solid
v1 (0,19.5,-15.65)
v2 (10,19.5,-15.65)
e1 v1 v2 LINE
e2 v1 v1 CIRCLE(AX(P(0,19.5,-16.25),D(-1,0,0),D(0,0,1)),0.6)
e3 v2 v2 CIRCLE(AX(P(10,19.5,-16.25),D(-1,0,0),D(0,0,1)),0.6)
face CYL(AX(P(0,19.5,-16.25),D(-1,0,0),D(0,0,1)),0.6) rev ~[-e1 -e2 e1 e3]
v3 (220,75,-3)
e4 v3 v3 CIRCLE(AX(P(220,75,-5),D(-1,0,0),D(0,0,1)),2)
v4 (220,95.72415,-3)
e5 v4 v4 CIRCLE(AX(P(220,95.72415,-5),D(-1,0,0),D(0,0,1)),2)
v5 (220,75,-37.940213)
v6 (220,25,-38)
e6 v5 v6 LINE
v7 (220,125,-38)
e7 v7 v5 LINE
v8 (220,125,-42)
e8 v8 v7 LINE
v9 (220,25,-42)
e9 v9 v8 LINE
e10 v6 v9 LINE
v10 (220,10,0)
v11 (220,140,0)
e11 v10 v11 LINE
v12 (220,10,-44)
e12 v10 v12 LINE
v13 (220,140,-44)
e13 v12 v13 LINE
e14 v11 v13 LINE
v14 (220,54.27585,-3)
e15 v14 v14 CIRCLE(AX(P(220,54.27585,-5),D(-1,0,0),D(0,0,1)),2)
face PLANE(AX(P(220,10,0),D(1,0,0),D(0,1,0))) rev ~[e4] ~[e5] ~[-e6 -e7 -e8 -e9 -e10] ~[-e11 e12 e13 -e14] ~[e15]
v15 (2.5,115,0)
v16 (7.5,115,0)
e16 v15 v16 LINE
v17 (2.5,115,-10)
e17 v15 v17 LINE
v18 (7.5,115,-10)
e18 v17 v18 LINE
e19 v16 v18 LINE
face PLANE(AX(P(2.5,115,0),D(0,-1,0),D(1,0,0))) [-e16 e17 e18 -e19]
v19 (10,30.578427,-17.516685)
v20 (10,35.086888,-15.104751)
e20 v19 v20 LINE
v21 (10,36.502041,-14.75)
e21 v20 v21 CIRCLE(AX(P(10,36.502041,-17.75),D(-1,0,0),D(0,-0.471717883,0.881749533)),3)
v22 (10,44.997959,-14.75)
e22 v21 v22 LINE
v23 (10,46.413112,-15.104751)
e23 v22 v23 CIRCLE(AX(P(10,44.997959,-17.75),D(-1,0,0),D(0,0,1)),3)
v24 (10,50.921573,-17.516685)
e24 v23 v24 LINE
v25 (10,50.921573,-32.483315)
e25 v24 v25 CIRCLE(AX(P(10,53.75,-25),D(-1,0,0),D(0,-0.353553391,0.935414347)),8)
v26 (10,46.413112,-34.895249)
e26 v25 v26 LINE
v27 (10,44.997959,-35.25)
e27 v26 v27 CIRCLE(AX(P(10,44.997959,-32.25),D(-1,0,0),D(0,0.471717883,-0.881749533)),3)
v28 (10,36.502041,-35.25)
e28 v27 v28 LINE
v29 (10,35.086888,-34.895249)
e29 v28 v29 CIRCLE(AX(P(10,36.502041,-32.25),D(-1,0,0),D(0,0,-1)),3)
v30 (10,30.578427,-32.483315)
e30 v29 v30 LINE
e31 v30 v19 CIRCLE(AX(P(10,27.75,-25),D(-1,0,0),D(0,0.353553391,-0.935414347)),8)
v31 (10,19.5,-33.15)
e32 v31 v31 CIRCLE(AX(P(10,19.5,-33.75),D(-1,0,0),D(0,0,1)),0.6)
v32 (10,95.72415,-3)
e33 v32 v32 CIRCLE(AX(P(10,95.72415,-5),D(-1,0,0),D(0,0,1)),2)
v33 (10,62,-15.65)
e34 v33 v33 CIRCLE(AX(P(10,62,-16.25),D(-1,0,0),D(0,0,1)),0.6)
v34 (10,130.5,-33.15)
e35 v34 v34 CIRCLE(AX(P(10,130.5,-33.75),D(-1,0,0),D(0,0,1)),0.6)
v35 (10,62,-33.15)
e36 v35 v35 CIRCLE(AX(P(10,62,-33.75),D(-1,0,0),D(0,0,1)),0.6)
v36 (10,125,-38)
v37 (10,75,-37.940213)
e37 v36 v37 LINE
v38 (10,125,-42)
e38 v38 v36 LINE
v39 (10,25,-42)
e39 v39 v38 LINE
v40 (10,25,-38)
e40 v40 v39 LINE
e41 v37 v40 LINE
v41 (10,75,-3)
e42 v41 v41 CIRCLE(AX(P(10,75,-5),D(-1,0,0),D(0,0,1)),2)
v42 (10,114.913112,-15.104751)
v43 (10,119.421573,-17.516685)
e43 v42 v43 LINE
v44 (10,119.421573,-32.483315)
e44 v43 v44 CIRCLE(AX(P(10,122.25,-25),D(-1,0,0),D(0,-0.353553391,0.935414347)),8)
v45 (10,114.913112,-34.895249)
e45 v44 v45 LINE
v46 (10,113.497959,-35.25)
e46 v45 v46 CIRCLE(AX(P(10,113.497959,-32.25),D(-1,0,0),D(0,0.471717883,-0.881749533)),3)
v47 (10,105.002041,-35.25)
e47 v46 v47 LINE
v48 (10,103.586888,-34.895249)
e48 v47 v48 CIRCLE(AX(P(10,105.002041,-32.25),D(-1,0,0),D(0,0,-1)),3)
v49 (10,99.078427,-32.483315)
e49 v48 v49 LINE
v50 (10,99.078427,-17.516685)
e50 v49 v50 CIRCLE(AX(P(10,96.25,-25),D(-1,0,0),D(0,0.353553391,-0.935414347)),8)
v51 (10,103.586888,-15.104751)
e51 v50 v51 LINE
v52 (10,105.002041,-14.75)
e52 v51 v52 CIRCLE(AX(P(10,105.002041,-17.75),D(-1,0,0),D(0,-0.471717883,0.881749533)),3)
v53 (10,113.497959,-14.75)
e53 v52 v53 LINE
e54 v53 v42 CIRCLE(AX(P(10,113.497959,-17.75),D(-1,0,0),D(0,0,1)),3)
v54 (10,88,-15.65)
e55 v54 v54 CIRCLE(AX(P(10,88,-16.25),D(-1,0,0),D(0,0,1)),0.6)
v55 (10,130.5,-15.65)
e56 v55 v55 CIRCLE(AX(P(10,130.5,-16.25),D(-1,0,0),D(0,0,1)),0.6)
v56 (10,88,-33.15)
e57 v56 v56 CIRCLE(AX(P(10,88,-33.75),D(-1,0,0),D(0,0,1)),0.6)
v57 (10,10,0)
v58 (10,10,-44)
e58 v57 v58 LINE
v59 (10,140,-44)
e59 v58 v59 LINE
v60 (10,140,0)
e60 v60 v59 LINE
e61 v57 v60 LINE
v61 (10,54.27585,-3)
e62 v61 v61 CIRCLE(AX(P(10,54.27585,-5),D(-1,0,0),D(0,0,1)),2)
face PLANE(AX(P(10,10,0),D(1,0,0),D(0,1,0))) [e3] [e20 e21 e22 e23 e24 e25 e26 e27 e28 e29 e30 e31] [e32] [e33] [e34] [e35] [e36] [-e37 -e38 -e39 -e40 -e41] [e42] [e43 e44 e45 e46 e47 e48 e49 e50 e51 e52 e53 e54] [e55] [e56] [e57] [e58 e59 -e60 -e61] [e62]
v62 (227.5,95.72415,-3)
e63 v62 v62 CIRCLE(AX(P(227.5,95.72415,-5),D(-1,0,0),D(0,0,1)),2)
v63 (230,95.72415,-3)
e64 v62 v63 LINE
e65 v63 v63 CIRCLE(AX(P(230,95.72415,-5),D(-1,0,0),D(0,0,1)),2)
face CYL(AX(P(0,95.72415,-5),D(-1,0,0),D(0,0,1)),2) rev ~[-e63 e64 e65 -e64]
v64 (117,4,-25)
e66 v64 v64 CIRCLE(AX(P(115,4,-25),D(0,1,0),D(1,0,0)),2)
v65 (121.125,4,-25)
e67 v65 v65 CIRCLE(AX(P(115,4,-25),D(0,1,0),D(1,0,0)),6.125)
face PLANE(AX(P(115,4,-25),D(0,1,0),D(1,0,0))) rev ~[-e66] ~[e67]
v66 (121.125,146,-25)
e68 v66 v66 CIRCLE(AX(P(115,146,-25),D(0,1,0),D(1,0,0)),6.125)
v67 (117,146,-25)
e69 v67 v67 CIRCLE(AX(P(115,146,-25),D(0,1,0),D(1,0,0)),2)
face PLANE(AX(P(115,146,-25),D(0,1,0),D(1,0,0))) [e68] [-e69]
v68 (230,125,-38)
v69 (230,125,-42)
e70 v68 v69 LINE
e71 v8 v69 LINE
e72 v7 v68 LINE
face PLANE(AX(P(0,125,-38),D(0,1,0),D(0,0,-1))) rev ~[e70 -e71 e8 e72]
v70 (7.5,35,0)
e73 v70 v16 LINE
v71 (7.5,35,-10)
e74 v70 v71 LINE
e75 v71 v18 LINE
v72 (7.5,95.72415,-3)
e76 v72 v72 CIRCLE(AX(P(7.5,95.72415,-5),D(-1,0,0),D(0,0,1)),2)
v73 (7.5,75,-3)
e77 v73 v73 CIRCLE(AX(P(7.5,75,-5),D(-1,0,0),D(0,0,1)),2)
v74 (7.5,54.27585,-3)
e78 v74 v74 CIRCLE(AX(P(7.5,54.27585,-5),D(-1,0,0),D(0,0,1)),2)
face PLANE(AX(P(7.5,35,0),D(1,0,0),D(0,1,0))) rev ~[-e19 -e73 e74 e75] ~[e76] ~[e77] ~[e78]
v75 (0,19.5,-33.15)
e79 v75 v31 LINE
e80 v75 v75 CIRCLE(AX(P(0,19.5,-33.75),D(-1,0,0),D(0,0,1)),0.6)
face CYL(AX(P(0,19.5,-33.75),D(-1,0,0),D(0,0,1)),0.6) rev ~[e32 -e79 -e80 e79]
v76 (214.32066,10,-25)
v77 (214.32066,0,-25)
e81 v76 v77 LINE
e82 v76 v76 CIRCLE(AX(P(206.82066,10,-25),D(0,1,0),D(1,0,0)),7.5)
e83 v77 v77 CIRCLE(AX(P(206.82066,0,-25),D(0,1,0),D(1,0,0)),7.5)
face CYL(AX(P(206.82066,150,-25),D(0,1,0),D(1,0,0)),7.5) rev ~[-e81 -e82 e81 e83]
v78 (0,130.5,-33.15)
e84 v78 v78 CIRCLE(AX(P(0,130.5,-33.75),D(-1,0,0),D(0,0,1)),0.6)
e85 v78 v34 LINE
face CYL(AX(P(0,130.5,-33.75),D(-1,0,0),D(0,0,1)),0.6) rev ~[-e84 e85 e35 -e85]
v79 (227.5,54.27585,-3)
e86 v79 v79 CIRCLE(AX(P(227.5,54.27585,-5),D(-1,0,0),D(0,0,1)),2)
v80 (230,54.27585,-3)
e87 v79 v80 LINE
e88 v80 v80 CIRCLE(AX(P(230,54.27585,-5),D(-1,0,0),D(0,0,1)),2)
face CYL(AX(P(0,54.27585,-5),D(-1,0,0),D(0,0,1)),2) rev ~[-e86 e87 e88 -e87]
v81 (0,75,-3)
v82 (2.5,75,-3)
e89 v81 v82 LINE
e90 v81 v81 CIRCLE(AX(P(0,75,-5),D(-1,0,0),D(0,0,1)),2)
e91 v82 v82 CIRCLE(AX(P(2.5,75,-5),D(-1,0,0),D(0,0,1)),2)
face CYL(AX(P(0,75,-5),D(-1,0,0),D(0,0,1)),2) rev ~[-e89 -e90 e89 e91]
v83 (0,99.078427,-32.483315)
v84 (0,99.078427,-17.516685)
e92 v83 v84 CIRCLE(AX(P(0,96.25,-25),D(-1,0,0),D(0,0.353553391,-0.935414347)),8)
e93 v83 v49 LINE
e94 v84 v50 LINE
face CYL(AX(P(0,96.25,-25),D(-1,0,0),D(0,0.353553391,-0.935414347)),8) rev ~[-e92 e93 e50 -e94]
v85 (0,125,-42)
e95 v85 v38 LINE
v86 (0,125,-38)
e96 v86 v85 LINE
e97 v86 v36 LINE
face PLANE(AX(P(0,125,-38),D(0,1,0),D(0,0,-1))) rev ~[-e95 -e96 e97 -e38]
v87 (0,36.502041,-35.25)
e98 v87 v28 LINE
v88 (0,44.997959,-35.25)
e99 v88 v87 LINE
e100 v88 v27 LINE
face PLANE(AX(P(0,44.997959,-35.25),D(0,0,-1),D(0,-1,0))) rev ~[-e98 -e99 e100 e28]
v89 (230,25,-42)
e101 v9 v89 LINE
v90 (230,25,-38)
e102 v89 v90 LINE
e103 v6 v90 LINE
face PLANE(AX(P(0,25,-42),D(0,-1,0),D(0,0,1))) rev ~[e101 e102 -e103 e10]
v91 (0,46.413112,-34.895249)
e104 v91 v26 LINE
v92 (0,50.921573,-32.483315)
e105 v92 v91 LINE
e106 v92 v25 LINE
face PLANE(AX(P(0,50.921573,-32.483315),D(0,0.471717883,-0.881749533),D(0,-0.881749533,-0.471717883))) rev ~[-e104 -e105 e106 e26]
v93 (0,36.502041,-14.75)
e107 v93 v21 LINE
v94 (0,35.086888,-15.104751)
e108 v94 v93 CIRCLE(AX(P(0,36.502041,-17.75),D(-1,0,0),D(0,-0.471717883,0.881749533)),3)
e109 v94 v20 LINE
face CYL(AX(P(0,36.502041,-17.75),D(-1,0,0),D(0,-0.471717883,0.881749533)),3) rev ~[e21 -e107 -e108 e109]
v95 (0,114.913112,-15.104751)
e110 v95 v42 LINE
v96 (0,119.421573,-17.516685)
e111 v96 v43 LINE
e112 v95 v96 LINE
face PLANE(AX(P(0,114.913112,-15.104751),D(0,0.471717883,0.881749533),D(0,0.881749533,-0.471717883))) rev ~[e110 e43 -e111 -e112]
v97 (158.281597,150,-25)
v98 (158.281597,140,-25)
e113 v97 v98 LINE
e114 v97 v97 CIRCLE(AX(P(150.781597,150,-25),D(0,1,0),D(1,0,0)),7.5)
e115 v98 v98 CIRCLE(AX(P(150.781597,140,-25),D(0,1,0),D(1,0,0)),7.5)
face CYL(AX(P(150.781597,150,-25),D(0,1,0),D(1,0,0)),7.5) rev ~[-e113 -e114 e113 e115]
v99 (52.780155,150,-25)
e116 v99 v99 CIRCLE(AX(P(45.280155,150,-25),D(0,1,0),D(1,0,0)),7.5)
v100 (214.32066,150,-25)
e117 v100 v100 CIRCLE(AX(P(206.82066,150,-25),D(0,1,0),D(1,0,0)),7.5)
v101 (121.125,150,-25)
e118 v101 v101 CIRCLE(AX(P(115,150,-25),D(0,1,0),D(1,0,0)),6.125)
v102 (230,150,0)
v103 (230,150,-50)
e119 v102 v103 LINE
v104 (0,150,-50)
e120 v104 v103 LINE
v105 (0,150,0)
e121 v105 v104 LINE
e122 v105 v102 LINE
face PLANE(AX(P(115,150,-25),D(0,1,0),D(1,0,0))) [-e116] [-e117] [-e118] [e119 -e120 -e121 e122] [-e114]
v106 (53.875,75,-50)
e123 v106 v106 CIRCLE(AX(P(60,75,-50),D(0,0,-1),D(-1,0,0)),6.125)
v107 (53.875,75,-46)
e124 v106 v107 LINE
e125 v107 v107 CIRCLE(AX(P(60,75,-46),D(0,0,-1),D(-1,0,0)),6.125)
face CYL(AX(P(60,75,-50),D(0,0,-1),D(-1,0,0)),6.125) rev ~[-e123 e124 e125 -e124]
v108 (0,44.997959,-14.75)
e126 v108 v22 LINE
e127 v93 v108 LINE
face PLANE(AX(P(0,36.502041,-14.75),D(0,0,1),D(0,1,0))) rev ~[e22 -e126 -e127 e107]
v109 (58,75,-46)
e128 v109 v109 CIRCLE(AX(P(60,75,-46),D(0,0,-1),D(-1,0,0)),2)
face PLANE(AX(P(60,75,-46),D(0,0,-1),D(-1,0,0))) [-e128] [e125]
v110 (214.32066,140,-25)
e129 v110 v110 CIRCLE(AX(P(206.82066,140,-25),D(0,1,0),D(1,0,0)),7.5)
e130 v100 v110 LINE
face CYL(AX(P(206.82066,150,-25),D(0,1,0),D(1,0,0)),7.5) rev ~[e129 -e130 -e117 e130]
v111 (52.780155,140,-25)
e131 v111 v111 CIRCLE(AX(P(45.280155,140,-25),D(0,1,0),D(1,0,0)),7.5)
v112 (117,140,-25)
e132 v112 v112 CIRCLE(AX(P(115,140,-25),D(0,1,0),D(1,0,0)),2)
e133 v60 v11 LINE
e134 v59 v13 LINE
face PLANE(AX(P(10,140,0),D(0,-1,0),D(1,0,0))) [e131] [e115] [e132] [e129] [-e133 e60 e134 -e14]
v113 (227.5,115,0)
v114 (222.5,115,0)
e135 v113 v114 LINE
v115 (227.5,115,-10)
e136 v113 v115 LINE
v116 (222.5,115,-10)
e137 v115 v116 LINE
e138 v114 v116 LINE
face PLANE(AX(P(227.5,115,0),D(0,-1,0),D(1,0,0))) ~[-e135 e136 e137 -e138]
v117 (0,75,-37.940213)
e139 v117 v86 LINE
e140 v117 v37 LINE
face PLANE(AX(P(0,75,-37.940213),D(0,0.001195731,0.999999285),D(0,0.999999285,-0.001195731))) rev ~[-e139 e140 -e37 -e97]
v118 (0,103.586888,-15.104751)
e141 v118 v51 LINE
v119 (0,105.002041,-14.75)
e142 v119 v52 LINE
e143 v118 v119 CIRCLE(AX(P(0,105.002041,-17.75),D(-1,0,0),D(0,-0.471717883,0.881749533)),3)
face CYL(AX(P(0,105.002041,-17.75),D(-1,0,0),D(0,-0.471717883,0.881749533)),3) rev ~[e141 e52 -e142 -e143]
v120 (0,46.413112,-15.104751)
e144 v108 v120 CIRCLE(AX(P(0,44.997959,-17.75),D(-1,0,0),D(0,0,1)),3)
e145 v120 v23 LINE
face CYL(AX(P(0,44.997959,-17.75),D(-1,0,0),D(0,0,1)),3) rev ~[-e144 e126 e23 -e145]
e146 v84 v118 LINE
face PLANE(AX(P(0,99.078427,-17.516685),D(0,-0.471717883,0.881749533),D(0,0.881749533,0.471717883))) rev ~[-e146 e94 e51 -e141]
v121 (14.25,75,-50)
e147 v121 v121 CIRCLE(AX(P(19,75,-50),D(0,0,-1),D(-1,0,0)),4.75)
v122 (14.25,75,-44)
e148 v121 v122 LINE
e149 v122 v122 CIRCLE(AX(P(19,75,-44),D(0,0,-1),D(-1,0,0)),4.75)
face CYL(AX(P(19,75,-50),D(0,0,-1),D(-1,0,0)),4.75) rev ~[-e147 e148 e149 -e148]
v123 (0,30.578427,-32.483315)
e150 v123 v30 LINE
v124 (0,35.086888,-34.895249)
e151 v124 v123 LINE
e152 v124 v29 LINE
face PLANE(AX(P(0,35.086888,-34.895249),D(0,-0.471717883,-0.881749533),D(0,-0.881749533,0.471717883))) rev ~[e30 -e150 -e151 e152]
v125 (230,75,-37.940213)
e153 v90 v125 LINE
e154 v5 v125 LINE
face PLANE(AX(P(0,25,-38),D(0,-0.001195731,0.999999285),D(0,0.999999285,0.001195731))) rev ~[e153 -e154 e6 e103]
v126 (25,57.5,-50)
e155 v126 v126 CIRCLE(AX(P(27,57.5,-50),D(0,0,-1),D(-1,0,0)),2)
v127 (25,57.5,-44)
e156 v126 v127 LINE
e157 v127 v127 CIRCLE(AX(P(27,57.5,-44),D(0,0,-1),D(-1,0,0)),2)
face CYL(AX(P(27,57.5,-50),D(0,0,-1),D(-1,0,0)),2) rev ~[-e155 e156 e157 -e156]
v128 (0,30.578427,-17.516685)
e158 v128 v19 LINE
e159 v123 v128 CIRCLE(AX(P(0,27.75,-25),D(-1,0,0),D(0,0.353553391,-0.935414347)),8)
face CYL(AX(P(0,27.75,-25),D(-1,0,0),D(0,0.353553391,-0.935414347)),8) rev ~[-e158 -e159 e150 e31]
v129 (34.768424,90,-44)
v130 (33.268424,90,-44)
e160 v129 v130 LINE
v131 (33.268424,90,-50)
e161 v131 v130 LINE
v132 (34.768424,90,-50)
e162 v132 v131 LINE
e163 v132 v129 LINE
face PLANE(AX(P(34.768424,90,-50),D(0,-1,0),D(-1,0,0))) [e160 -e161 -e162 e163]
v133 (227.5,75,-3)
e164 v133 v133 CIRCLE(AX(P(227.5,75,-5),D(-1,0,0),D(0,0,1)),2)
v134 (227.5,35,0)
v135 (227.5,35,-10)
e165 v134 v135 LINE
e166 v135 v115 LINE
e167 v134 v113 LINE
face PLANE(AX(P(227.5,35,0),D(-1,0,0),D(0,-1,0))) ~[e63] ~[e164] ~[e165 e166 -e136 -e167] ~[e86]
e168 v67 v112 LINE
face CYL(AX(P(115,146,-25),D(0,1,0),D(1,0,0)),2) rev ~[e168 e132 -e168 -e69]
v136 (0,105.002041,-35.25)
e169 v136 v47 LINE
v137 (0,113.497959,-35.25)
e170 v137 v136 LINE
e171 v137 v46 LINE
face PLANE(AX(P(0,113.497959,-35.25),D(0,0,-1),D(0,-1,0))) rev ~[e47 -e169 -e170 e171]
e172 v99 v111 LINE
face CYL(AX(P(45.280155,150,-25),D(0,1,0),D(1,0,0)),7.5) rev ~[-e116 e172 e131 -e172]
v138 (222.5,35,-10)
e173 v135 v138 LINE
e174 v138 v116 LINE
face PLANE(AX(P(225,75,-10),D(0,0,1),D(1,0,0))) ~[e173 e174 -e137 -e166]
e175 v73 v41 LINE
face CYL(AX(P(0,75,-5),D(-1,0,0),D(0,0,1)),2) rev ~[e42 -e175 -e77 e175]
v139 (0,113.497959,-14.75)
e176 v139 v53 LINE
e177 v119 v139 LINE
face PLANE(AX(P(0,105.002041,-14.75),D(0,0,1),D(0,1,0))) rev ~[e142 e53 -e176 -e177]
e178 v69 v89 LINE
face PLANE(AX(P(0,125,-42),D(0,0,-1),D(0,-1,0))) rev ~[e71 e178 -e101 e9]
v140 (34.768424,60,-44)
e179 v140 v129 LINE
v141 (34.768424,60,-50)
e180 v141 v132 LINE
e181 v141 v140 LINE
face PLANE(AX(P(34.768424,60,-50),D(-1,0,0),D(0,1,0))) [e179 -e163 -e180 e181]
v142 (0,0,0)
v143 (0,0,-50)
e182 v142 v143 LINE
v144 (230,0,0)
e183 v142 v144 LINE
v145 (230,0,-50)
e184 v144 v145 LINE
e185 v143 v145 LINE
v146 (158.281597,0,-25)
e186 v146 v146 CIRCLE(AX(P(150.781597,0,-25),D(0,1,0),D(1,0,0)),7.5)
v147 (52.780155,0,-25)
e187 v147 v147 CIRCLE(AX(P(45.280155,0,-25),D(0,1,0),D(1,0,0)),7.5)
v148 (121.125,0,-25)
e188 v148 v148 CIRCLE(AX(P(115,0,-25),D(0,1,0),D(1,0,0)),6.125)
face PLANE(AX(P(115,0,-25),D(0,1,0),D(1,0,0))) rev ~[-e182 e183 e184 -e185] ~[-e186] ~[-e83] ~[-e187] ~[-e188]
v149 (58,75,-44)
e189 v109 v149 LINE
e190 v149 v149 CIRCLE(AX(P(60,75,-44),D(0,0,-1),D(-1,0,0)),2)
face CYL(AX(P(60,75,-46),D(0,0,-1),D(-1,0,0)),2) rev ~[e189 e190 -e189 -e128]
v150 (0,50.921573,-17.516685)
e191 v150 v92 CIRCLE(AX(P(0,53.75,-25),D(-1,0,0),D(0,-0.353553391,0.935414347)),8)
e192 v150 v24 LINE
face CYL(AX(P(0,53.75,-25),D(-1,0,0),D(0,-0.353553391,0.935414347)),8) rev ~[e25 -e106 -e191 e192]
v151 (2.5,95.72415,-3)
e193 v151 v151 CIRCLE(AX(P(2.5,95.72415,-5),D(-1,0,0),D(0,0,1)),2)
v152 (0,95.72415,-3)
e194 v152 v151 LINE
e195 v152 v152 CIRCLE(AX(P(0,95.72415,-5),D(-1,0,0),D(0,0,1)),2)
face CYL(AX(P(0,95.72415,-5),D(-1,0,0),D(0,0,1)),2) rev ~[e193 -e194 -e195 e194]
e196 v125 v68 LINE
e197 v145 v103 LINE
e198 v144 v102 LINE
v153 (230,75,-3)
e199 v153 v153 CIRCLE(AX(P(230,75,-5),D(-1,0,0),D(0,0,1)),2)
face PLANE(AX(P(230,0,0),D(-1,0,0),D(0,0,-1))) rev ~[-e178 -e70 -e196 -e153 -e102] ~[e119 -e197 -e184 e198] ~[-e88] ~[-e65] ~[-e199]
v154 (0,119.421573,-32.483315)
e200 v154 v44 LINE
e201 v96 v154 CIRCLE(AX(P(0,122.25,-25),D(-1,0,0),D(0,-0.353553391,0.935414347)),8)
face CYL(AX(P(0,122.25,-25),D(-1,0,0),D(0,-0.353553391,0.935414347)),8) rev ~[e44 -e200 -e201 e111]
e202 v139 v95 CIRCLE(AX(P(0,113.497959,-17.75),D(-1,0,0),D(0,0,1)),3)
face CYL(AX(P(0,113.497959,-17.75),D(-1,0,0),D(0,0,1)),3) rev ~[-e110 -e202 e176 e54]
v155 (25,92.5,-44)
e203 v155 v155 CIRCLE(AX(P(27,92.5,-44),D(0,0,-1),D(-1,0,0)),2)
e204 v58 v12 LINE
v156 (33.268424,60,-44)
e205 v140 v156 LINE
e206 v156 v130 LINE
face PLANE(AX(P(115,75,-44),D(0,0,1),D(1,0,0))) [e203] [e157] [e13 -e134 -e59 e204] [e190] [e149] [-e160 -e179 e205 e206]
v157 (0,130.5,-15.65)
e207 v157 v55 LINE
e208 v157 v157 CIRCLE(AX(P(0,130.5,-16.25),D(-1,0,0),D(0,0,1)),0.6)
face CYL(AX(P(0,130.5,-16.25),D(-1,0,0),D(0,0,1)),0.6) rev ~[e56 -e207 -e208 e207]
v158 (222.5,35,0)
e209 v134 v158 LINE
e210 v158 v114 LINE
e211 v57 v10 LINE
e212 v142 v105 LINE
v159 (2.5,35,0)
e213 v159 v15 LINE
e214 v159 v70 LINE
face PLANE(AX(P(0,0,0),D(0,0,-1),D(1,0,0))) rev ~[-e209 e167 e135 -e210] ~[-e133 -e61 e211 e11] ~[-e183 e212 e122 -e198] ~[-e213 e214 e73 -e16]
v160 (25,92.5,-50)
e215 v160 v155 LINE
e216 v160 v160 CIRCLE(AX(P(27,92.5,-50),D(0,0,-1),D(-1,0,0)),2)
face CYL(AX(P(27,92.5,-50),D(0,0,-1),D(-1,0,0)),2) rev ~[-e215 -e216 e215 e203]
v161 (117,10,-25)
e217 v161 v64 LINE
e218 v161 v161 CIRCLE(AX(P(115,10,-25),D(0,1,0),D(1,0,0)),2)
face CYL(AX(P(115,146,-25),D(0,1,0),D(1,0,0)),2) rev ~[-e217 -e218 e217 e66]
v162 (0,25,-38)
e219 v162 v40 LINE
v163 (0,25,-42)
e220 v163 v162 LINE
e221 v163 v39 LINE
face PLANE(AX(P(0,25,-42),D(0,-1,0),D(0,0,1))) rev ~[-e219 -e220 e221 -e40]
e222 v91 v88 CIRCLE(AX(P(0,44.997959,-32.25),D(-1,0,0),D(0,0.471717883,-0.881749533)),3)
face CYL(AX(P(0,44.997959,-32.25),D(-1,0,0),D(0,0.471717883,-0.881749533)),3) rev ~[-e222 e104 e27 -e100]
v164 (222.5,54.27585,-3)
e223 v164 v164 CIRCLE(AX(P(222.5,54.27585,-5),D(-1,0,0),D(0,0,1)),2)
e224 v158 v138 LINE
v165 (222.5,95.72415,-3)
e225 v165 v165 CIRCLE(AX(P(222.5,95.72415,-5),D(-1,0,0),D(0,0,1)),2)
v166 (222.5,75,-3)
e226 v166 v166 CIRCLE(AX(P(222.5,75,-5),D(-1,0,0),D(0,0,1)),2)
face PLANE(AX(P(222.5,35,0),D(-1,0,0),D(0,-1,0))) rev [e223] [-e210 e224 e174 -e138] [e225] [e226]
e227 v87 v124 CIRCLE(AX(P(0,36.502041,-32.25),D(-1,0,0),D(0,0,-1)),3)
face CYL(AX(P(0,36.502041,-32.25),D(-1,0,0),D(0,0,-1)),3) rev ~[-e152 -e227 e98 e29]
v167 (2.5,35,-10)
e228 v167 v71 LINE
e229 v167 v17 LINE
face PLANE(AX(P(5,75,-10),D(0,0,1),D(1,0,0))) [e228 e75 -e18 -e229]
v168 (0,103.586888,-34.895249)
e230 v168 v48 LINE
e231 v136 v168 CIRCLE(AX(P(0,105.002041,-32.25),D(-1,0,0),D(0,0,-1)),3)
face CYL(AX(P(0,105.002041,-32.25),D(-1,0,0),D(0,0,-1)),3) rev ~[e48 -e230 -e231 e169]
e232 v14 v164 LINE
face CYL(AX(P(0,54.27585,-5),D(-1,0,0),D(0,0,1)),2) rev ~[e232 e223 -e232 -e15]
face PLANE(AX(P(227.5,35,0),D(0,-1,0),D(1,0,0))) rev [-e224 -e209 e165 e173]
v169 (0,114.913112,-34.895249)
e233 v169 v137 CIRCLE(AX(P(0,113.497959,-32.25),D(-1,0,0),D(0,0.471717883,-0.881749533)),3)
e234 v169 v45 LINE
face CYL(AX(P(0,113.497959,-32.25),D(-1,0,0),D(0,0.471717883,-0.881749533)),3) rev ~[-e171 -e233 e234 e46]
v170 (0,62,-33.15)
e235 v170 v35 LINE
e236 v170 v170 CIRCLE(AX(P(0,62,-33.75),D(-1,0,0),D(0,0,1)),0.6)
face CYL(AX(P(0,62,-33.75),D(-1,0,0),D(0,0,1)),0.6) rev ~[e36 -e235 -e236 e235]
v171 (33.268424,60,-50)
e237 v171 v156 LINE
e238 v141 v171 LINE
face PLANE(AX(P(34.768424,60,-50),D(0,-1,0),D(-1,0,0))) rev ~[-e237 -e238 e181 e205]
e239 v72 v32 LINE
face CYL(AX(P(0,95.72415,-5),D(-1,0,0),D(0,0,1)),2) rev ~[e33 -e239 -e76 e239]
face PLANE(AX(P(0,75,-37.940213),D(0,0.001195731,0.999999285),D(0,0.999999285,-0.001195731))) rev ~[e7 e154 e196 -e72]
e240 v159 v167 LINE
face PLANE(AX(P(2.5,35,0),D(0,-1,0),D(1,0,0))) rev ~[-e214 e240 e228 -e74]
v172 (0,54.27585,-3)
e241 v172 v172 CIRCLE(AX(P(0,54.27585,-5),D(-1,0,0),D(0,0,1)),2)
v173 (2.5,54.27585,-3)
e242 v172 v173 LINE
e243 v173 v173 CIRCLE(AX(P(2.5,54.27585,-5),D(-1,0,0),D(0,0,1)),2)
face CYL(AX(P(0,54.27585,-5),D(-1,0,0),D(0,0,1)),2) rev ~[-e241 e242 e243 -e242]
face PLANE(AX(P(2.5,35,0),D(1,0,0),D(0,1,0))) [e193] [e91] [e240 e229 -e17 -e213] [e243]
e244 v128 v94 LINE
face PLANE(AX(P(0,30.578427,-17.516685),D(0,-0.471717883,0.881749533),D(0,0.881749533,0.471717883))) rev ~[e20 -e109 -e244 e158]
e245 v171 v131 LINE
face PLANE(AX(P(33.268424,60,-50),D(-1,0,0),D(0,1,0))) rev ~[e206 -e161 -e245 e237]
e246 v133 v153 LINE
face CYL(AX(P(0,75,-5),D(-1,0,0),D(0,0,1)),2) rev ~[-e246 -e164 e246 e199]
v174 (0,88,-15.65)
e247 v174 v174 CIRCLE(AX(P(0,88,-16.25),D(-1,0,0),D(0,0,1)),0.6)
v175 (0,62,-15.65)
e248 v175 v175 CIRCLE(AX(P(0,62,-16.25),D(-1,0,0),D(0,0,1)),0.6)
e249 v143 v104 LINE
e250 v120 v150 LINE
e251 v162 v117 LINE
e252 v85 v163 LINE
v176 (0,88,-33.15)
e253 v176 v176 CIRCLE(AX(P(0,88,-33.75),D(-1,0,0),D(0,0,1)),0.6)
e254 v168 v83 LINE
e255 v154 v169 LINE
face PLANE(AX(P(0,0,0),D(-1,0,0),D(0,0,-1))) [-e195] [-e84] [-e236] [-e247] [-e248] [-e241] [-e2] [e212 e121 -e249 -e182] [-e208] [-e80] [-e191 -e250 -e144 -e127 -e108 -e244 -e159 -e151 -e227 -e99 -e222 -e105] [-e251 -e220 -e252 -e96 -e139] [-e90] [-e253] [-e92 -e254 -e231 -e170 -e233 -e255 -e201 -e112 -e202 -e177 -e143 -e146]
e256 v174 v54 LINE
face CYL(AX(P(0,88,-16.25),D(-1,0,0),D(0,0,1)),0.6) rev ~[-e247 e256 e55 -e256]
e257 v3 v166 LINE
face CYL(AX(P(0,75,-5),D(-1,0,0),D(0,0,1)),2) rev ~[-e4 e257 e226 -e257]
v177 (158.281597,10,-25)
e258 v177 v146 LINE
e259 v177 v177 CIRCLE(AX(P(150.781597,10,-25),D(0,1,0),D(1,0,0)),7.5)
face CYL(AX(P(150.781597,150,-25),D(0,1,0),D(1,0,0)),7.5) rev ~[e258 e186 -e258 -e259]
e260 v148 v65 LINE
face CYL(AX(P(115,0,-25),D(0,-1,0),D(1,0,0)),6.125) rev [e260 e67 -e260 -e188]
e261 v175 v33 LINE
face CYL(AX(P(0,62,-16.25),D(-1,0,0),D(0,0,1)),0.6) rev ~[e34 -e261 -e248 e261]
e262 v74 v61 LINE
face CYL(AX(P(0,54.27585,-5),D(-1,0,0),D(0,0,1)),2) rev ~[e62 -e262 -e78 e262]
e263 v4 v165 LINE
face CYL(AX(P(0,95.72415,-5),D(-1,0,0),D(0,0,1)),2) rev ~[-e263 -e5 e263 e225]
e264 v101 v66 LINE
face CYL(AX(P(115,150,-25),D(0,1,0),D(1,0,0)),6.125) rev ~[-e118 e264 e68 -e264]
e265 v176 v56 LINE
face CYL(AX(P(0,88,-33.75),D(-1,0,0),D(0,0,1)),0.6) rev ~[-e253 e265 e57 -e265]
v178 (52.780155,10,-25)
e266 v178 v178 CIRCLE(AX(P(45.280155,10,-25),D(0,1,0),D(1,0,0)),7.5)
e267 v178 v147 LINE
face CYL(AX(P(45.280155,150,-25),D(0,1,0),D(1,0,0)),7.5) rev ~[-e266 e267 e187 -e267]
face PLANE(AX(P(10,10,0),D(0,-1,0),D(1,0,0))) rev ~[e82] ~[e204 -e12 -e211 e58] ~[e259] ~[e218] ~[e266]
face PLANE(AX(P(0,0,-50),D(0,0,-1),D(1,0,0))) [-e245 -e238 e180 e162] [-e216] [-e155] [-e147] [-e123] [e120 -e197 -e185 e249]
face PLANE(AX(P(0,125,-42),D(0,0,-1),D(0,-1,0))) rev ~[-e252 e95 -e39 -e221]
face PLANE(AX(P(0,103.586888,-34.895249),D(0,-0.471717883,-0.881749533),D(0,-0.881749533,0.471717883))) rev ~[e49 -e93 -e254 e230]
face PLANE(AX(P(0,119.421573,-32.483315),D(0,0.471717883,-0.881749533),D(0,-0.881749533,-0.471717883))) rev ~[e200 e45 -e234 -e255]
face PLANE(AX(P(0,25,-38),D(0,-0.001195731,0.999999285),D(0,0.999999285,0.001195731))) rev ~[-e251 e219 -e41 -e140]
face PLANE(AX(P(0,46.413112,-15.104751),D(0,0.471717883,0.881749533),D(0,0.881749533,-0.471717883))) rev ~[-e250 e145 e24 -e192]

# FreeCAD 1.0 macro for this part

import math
import FreeCAD as App
import Part
import Sketcher
from FreeCAD import Vector

doc = App.newDocument("Part")
body = doc.addObject("PartDesign::Body", "Body")

# Sketch on XZ plane
sketch1 = body.newObject("Sketcher::SketchObject", "Sketch")
sketch1.AttachmentSupport = (doc.getObject("XZ_Plane"), [""])
sketch1.MapMode = "FlatFace"
sketch1.addGeometry([
    Part.LineSegment(Vector(0, -50, 0), Vector(0, 0, 0)),
    Part.LineSegment(Vector(0, 0, 0), Vector(230, 0, 0)),
    Part.LineSegment(Vector(230, 0, 0), Vector(230, -50, 0)),
    Part.LineSegment(Vector(230, -50, 0), Vector(0, -50, 0)),
], False)
sketch1.addConstraint([
    Sketcher.Constraint("Coincident", 0, 2, 1, 1),
    Sketcher.Constraint("Coincident", 1, 2, 2, 1),
    Sketcher.Constraint("Coincident", 2, 2, 3, 1),
    Sketcher.Constraint("Coincident", 3, 2, 0, 1),
    Sketcher.Constraint("Vertical", 0),
    Sketcher.Constraint("Horizontal", 1),
    Sketcher.Constraint("Vertical", 2),
    Sketcher.Constraint("Horizontal", 3),
    Sketcher.Constraint("Coincident", 0, 2, -1, 1),
    Sketcher.Constraint("DistanceX", 1, 1, 1, 2, 230.0),
    Sketcher.Constraint("DistanceY", 0, 1, 0, 2, 50.0),
])
pad1 = body.newObject("PartDesign::Pad", "Pad")
pad1.Profile = sketch1
pad1.Length = 150
pad1.Reversed = True

# Sketch on XY plane
sketch2 = body.newObject("Sketcher::SketchObject", "Sketch001")
sketch2.AttachmentSupport = (doc.getObject("XY_Plane"), [""])
sketch2.MapMode = "FlatFace"
sketch2.addGeometry([
    Part.LineSegment(Vector(10, 140, 0), Vector(10, 10, 0)),
    Part.LineSegment(Vector(10, 10, 0), Vector(220, 10, 0)),
    Part.LineSegment(Vector(220, 10, 0), Vector(220, 140, 0)),
    Part.LineSegment(Vector(220, 140, 0), Vector(10, 140, 0)),
], False)
sketch2.addConstraint([
    Sketcher.Constraint("Coincident", 0, 2, 1, 1),
    Sketcher.Constraint("Coincident", 1, 2, 2, 1),
    Sketcher.Constraint("Coincident", 2, 2, 3, 1),
    Sketcher.Constraint("Coincident", 3, 2, 0, 1),
    Sketcher.Constraint("Vertical", 0),
    Sketcher.Constraint("Horizontal", 1),
    Sketcher.Constraint("Vertical", 2),
    Sketcher.Constraint("Horizontal", 3),
    Sketcher.Constraint("DistanceX", 1, 1, 1, 2, 210.0),
    Sketcher.Constraint("DistanceY", 0, 2, 0, 1, 130.0),
    Sketcher.Constraint("DistanceX", -1, 1, 0, 2, 10.0),
    Sketcher.Constraint("DistanceY", -1, 1, 0, 2, 10.0),
])
pocket1 = body.newObject("PartDesign::Pocket", "Pocket")
pocket1.Profile = sketch2
pocket1.Length = 44

# Sketch on XZ plane
sketch3 = body.newObject("Sketcher::SketchObject", "Sketch002")
sketch3.AttachmentSupport = (doc.getObject("XZ_Plane"), [""])
sketch3.MapMode = "FlatFace"
sketch3.AttachmentOffset = App.Placement(Vector(0, 0, -150), App.Rotation())
sketch3.addGeometry(Part.Circle(Vector(115, -25, 0), Vector(0, 0, 1), 6.125), False)
sketch3.addConstraint([
    Sketcher.Constraint("Diameter", 0, 12.25),
    Sketcher.Constraint("DistanceX", -1, 1, 0, 3, 115.0),
    Sketcher.Constraint("DistanceY", 0, 3, -1, 1, 25.0),
])
pocket2 = body.newObject("PartDesign::Pocket", "Pocket001")
pocket2.Profile = sketch3
pocket2.Length = 4
pocket2.Reversed = True

# Sketch on XZ plane
sketch4 = body.newObject("Sketcher::SketchObject", "Sketch003")
sketch4.AttachmentSupport = (doc.getObject("XZ_Plane"), [""])
sketch4.MapMode = "FlatFace"
sketch4.addGeometry(Part.Circle(Vector(115, -25, 0), Vector(0, 0, 1), 6.125), False)
sketch4.addConstraint([
    Sketcher.Constraint("Diameter", 0, 12.25),
    Sketcher.Constraint("DistanceX", -1, 1, 0, 3, 115.0),
    Sketcher.Constraint("DistanceY", 0, 3, -1, 1, 25.0),
])
pocket3 = body.newObject("PartDesign::Pocket", "Pocket002")
pocket3.Profile = sketch4
pocket3.Length = 4

# Sketch on XY plane
sketch5 = body.newObject("Sketcher::SketchObject", "Sketch004")
sketch5.AttachmentSupport = (doc.getObject("XY_Plane"), [""])
sketch5.MapMode = "FlatFace"
sketch5.AttachmentOffset = App.Placement(Vector(0, 0, -50), App.Rotation())
sketch5.addGeometry(Part.Circle(Vector(60, 75, 0), Vector(0, 0, 1), 6.125), False)
sketch5.addConstraint([
    Sketcher.Constraint("Diameter", 0, 12.25),
    Sketcher.Constraint("DistanceX", -1, 1, 0, 3, 60.0),
    Sketcher.Constraint("DistanceY", -1, 1, 0, 3, 75.0),
])
pocket4 = body.newObject("PartDesign::Pocket", "Pocket003")
pocket4.Profile = sketch5
pocket4.Length = 4
pocket4.Reversed = True

# Sketch on XY plane
sketch6 = body.newObject("Sketcher::SketchObject", "Sketch005")
sketch6.AttachmentSupport = (doc.getObject("XY_Plane"), [""])
sketch6.MapMode = "FlatFace"
sketch6.AttachmentOffset = App.Placement(Vector(0, 0, -46), App.Rotation())
sketch6.addGeometry(Part.Circle(Vector(60, 75, 0), Vector(0, 0, 1), 2), False)
sketch6.addConstraint([
    Sketcher.Constraint("Diameter", 0, 4.0),
    Sketcher.Constraint("DistanceX", -1, 1, 0, 3, 60.0),
    Sketcher.Constraint("DistanceY", -1, 1, 0, 3, 75.0),
])
pocket5 = body.newObject("PartDesign::Pocket", "Pocket004")
pocket5.Profile = sketch6
pocket5.Type = "ThroughAll"
pocket5.Reversed = True

# Sketch on XZ plane
sketch7 = body.newObject("Sketcher::SketchObject", "Sketch006")
sketch7.AttachmentSupport = (doc.getObject("XZ_Plane"), [""])
sketch7.MapMode = "FlatFace"
sketch7.AttachmentOffset = App.Placement(Vector(0, 0, -146), App.Rotation())
sketch7.addGeometry(Part.Circle(Vector(115, -25, 0), Vector(0, 0, 1), 2), False)
sketch7.addConstraint([
    Sketcher.Constraint("Diameter", 0, 4.0),
    Sketcher.Constraint("DistanceX", -1, 1, 0, 3, 115.0),
    Sketcher.Constraint("DistanceY", 0, 3, -1, 1, 25.0),
])
pocket6 = body.newObject("PartDesign::Pocket", "Pocket005")
pocket6.Profile = sketch7
pocket6.Type = "ThroughAll"
pocket6.Reversed = True

# Sketch on XY plane
sketch8 = body.newObject("Sketcher::SketchObject", "Sketch007")
sketch8.AttachmentSupport = (doc.getObject("XY_Plane"), [""])
sketch8.MapMode = "FlatFace"
sketch8.AttachmentOffset = App.Placement(Vector(0, 0, -50), App.Rotation())
sketch8.addGeometry(Part.Circle(Vector(27, 92.5, 0), Vector(0, 0, 1), 2), False)
sketch8.addConstraint([
    Sketcher.Constraint("Diameter", 0, 4.0),
    Sketcher.Constraint("DistanceX", -1, 1, 0, 3, 27.0),
    Sketcher.Constraint("DistanceY", -1, 1, 0, 3, 92.5),
])
pocket7 = body.newObject("PartDesign::Pocket", "Pocket006")
pocket7.Profile = sketch8
pocket7.Type = "UpToFirst"
pocket7.Reversed = True

# Sketch on XY plane
sketch9 = body.newObject("Sketcher::SketchObject", "Sketch008")
sketch9.AttachmentSupport = (doc.getObject("XY_Plane"), [""])
sketch9.MapMode = "FlatFace"
sketch9.AttachmentOffset = App.Placement(Vector(0, 0, -50), App.Rotation())
sketch9.addGeometry(Part.Circle(Vector(27, 57.5, 0), Vector(0, 0, 1), 2), False)
sketch9.addConstraint([
    Sketcher.Constraint("Diameter", 0, 4.0),
    Sketcher.Constraint("DistanceX", -1, 1, 0, 3, 27.0),
    Sketcher.Constraint("DistanceY", -1, 1, 0, 3, 57.5),
])
pocket8 = body.newObject("PartDesign::Pocket", "Pocket007")
pocket8.Profile = sketch9
pocket8.Type = "UpToFirst"
pocket8.Reversed = True

# Sketch on XY plane
sketch10 = body.newObject("Sketcher::SketchObject", "Sketch009")
sketch10.AttachmentSupport = (doc.getObject("XY_Plane"), [""])
sketch10.MapMode = "FlatFace"
sketch10.AttachmentOffset = App.Placement(Vector(0, 0, -50), App.Rotation())
sketch10.addGeometry(Part.Circle(Vector(19, 75, 0), Vector(0, 0, 1), 4.75), False)
sketch10.addConstraint([
    Sketcher.Constraint("Diameter", 0, 9.5),
    Sketcher.Constraint("DistanceX", -1, 1, 0, 3, 19.0),
    Sketcher.Constraint("DistanceY", -1, 1, 0, 3, 75.0),
])
pocket9 = body.newObject("PartDesign::Pocket", "Pocket008")
pocket9.Profile = sketch10
pocket9.Type = "UpToFirst"
pocket9.Reversed = True

# Sketch on XY plane
sketch11 = body.newObject("Sketcher::SketchObject", "Sketch010")
sketch11.AttachmentSupport = (doc.getObject("XY_Plane"), [""])
sketch11.MapMode = "FlatFace"
sketch11.AttachmentOffset = App.Placement(Vector(0, 0, -50), App.Rotation())
sketch11.addGeometry([
    Part.LineSegment(Vector(34.768424, 90, 0), Vector(34.768424, 60, 0)),
    Part.LineSegment(Vector(34.768424, 60, 0), Vector(33.268424, 60, 0)),
    Part.LineSegment(Vector(33.268424, 60, 0), Vector(33.268424, 90, 0)),
    Part.LineSegment(Vector(33.268424, 90, 0), Vector(34.768424, 90, 0)),
], False)
sketch11.addConstraint([
    Sketcher.Constraint("Coincident", 0, 2, 1, 1),
    Sketcher.Constraint("Coincident", 1, 2, 2, 1),
    Sketcher.Constraint("Coincident", 2, 2, 3, 1),
    Sketcher.Constraint("Coincident", 3, 2, 0, 1),
    Sketcher.Constraint("Vertical", 0),
    Sketcher.Constraint("Horizontal", 1),
    Sketcher.Constraint("Vertical", 2),
    Sketcher.Constraint("Horizontal", 3),
    Sketcher.Constraint("DistanceY", 0, 2, 0, 1, 30.0),
    Sketcher.Constraint("DistanceX", 1, 2, 1, 1, 1.5),
    Sketcher.Constraint("DistanceY", -1, 1, 0, 2, 60.0),
    Sketcher.Constraint("DistanceX", -1, 1, 0, 2, 34.768424),
])
pocket10 = body.newObject("PartDesign::Pocket", "Pocket009")
pocket10.Profile = sketch11
pocket10.Type = "UpToFirst"
pocket10.Reversed = True

# Sketch on XZ plane
sketch12 = body.newObject("Sketcher::SketchObject", "Sketch011")
sketch12.AttachmentSupport = (doc.getObject("XZ_Plane"), [""])
sketch12.MapMode = "FlatFace"
sketch12.AttachmentOffset = App.Placement(Vector(0, 0, -150), App.Rotation())
sketch12.addGeometry([
    Part.Circle(Vector(45.280155, -25, 0), Vector(0, 0, 1), 7.5),
    Part.Circle(Vector(150.781597, -25, 0), Vector(0, 0, 1), 7.5),
    Part.Circle(Vector(206.82066, -25, 0), Vector(0, 0, 1), 7.5),
], False)
sketch12.addConstraint([
    Sketcher.Constraint("Equal", 0, 1),
    Sketcher.Constraint("Equal", 1, 2),
    Sketcher.Constraint("Horizontal", 0, 3, 1, 3),
    Sketcher.Constraint("Horizontal", 1, 3, 2, 3),
    Sketcher.Constraint("Diameter", 0, 15.0),
    Sketcher.Constraint("DistanceY", 0, 3, -1, 1, 25.0),
    Sketcher.Constraint("DistanceX", -1, 1, 2, 3, 206.82066),
    Sketcher.Constraint("DistanceX", 0, 3, 1, 3, 105.501442),
    Sketcher.Constraint("DistanceX", -1, 1, 0, 3, 45.280155),
])
pocket11 = body.newObject("PartDesign::Pocket", "Pocket010")
pocket11.Profile = sketch12
pocket11.Type = "ThroughAll"
pocket11.Reversed = True

# Sketch on YZ plane
sketch13 = body.newObject("Sketcher::SketchObject", "Sketch012")
sketch13.AttachmentSupport = (doc.getObject("YZ_Plane"), [""])
sketch13.MapMode = "FlatFace"
sketch13.addGeometry(Part.Circle(Vector(62, -33.75, 0), Vector(0, 0, 1), 0.6), False)
sketch13.addConstraint([
    Sketcher.Constraint("Diameter", 0, 1.2),
    Sketcher.Constraint("DistanceX", -1, 1, 0, 3, 62.0),
    Sketcher.Constraint("DistanceY", 0, 3, -1, 1, 33.75),
])
pocket12 = body.newObject("PartDesign::Pocket", "Pocket011")
pocket12.Profile = sketch13
pocket12.Type = "UpToFirst"
pocket12.Reversed = True

# Sketch on YZ plane
sketch14 = body.newObject("Sketcher::SketchObject", "Sketch013")
sketch14.AttachmentSupport = (doc.getObject("YZ_Plane"), [""])
sketch14.MapMode = "FlatFace"
sketch14.addGeometry(Part.Circle(Vector(19.5, -16.25, 0), Vector(0, 0, 1), 0.6), False)
sketch14.addConstraint([
    Sketcher.Constraint("Diameter", 0, 1.2),
    Sketcher.Constraint("DistanceX", -1, 1, 0, 3, 19.5),
    Sketcher.Constraint("DistanceY", 0, 3, -1, 1, 16.25),
])
pocket13 = body.newObject("PartDesign::Pocket", "Pocket012")
pocket13.Profile = sketch14
pocket13.Type = "UpToFirst"
pocket13.Reversed = True

# Sketch on YZ plane
sketch15 = body.newObject("Sketcher::SketchObject", "Sketch014")
sketch15.AttachmentSupport = (doc.getObject("YZ_Plane"), [""])
sketch15.MapMode = "FlatFace"
sketch15.addGeometry(Part.Circle(Vector(62, -16.25, 0), Vector(0, 0, 1), 0.6), False)
sketch15.addConstraint([
    Sketcher.Constraint("Diameter", 0, 1.2),
    Sketcher.Constraint("DistanceX", -1, 1, 0, 3, 62.0),
    Sketcher.Constraint("DistanceY", 0, 3, -1, 1, 16.25),
])
pocket14 = body.newObject("PartDesign::Pocket", "Pocket013")
pocket14.Profile = sketch15
pocket14.Type = "UpToFirst"
pocket14.Reversed = True

# Sketch on YZ plane
sketch16 = body.newObject("Sketcher::SketchObject", "Sketch015")
sketch16.AttachmentSupport = (doc.getObject("YZ_Plane"), [""])
sketch16.MapMode = "FlatFace"
sketch16.addGeometry(Part.Circle(Vector(19.5, -33.75, 0), Vector(0, 0, 1), 0.6), False)
sketch16.addConstraint([
    Sketcher.Constraint("Diameter", 0, 1.2),
    Sketcher.Constraint("DistanceX", -1, 1, 0, 3, 19.5),
    Sketcher.Constraint("DistanceY", 0, 3, -1, 1, 33.75),
])
pocket15 = body.newObject("PartDesign::Pocket", "Pocket014")
pocket15.Profile = sketch16
pocket15.Type = "UpToFirst"
pocket15.Reversed = True

# Sketch on YZ plane
sketch17 = body.newObject("Sketcher::SketchObject", "Sketch016")
sketch17.AttachmentSupport = (doc.getObject("YZ_Plane"), [""])
sketch17.MapMode = "FlatFace"
sketch17.addGeometry(Part.Circle(Vector(130.5, -33.75, 0), Vector(0, 0, 1), 0.6), False)
sketch17.addConstraint([
    Sketcher.Constraint("Diameter", 0, 1.2),
    Sketcher.Constraint("DistanceX", -1, 1, 0, 3, 130.5),
    Sketcher.Constraint("DistanceY", 0, 3, -1, 1, 33.75),
])
pocket16 = body.newObject("PartDesign::Pocket", "Pocket015")
pocket16.Profile = sketch17
pocket16.Type = "UpToFirst"
pocket16.Reversed = True

# Sketch on YZ plane
sketch18 = body.newObject("Sketcher::SketchObject", "Sketch017")
sketch18.AttachmentSupport = (doc.getObject("YZ_Plane"), [""])
sketch18.MapMode = "FlatFace"
sketch18.addGeometry(Part.Circle(Vector(88, -16.25, 0), Vector(0, 0, 1), 0.6), False)
sketch18.addConstraint([
    Sketcher.Constraint("Diameter", 0, 1.2),
    Sketcher.Constraint("DistanceX", -1, 1, 0, 3, 88.0),
    Sketcher.Constraint("DistanceY", 0, 3, -1, 1, 16.25),
])
pocket17 = body.newObject("PartDesign::Pocket", "Pocket016")
pocket17.Profile = sketch18
pocket17.Type = "UpToFirst"
pocket17.Reversed = True

# Sketch on YZ plane
sketch19 = body.newObject("Sketcher::SketchObject", "Sketch018")
sketch19.AttachmentSupport = (doc.getObject("YZ_Plane"), [""])
sketch19.MapMode = "FlatFace"
sketch19.addGeometry(Part.Circle(Vector(130.5, -16.25, 0), Vector(0, 0, 1), 0.6), False)
sketch19.addConstraint([
    Sketcher.Constraint("Diameter", 0, 1.2),
    Sketcher.Constraint("DistanceX", -1, 1, 0, 3, 130.5),
    Sketcher.Constraint("DistanceY", 0, 3, -1, 1, 16.25),
])
pocket18 = body.newObject("PartDesign::Pocket", "Pocket017")
pocket18.Profile = sketch19
pocket18.Type = "UpToFirst"
pocket18.Reversed = True

# Sketch on YZ plane
sketch20 = body.newObject("Sketcher::SketchObject", "Sketch019")
sketch20.AttachmentSupport = (doc.getObject("YZ_Plane"), [""])
sketch20.MapMode = "FlatFace"
sketch20.addGeometry(Part.Circle(Vector(88, -33.75, 0), Vector(0, 0, 1), 0.6), False)
sketch20.addConstraint([
    Sketcher.Constraint("Diameter", 0, 1.2),
    Sketcher.Constraint("DistanceX", -1, 1, 0, 3, 88.0),
    Sketcher.Constraint("DistanceY", 0, 3, -1, 1, 33.75),
])
pocket19 = body.newObject("PartDesign::Pocket", "Pocket018")
pocket19.Profile = sketch20
pocket19.Type = "UpToFirst"
pocket19.Reversed = True

# Sketch on YZ plane
sketch21 = body.newObject("Sketcher::SketchObject", "Sketch020")
sketch21.AttachmentSupport = (doc.getObject("YZ_Plane"), [""])
sketch21.MapMode = "FlatFace"
sketch21.addGeometry([
    Part.LineSegment(Vector(44.997959, -35.25, 0), Vector(36.502041, -35.25, 0)),  # 0
    Part.ArcOfCircle(Part.Circle(Vector(36.502041, -32.25, 0), Vector(0, 0, 1), 3), math.radians(-118.145866), math.radians(-90)),  # 1
    Part.LineSegment(Vector(35.086888, -34.895249, 0), Vector(30.578427, -32.483315, 0)),  # 2
    Part.ArcOfCircle(Part.Circle(Vector(27.75, -25, 0), Vector(0, 0, 1), 8), math.radians(69.295189), math.radians(290.704811)),  # 3
    Part.LineSegment(Vector(30.578427, -17.516685, 0), Vector(35.086888, -15.104751, 0)),  # 4
    Part.ArcOfCircle(Part.Circle(Vector(36.502041, -17.75, 0), Vector(0, 0, 1), 3), math.radians(90), math.radians(118.145866)),  # 5
    Part.LineSegment(Vector(36.502041, -14.75, 0), Vector(44.997959, -14.75, 0)),  # 6
    Part.ArcOfCircle(Part.Circle(Vector(44.997959, -17.75, 0), Vector(0, 0, 1), 3), math.radians(61.854134), math.radians(90)),  # 7
    Part.LineSegment(Vector(46.413112, -15.104751, 0), Vector(50.921573, -17.516685, 0)),  # 8
    Part.ArcOfCircle(Part.Circle(Vector(53.75, -25, 0), Vector(0, 0, 1), 8), math.radians(-110.704811), math.radians(110.704811)),  # 9
    Part.LineSegment(Vector(50.921573, -32.483315, 0), Vector(46.413112, -34.895249, 0)),  # 10
    Part.ArcOfCircle(Part.Circle(Vector(44.997959, -32.25, 0), Vector(0, 0, 1), 3), math.radians(-90), math.radians(-61.854134)),  # 11
], False)
sketch21.addConstraint([
    Sketcher.Constraint("Tangent", 0, 2, 1, 2),
    Sketcher.Constraint("Tangent", 1, 1, 2, 1),
    Sketcher.Constraint("Coincident", 2, 2, 3, 2),
    Sketcher.Constraint("Coincident", 3, 1, 4, 1),
    Sketcher.Constraint("Tangent", 4, 2, 5, 2),
    Sketcher.Constraint("Tangent", 5, 1, 6, 1),
    Sketcher.Constraint("Tangent", 6, 2, 7, 2),
    Sketcher.Constraint("Tangent", 7, 1, 8, 1),
    Sketcher.Constraint("Coincident", 8, 2, 9, 2),
    Sketcher.Constraint("Coincident", 9, 1, 10, 1),
    Sketcher.Constraint("Tangent", 10, 2, 11, 2),
    Sketcher.Constraint("Tangent", 11, 1, 0, 1),
    Sketcher.Constraint("Horizontal", 0),
    Sketcher.Constraint("Horizontal", 6),
    Sketcher.Constraint("Equal", 1, 5),
    Sketcher.Constraint("Equal", 5, 7),
    Sketcher.Constraint("Equal", 3, 9),
    Sketcher.Constraint("Equal", 7, 11),
    Sketcher.Constraint("Parallel", 2, 8),
    Sketcher.Constraint("Parallel", 4, 10),
    Sketcher.Constraint("Horizontal", 3, 3, 9, 3),
    Sketcher.Constraint("Horizontal", 4, 2, 7, 1),
    Sketcher.Constraint("Horizontal", 3, 1, 8, 2),
    Sketcher.Constraint("Horizontal", 2, 2, 9, 1),
    Sketcher.Constraint("Vertical", 1, 3, 5, 3),
    Sketcher.Constraint("Vertical", 2, 2, 3, 1),
    Sketcher.Constraint("Radius", 1, 3.0),
    Sketcher.Constraint("Radius", 3, 8.0),
    Sketcher.Constraint("DistanceY", 3, 3, -1, 1, 25.0),
    Sketcher.Constraint("DistanceX", 3, 3, 9, 3, 26.0),
    Sketcher.Constraint("DistanceY", 1, 3, 5, 3, 14.5),
    Sketcher.Constraint("DistanceX", -1, 1, 3, 3, 27.75),
    Sketcher.Constraint("DistanceX", 0, 2, 0, 1, 8.495917),
    Sketcher.Constraint("DistanceY", 1, 1, -1, 1, 34.895249),
])
pocket20 = body.newObject("PartDesign::Pocket", "Pocket019")
pocket20.Profile = sketch21
pocket20.Type = "UpToFirst"
pocket20.Reversed = True

# Sketch on YZ plane
sketch22 = body.newObject("Sketcher::SketchObject", "Sketch021")
sketch22.AttachmentSupport = (doc.getObject("YZ_Plane"), [""])
sketch22.MapMode = "FlatFace"
sketch22.addGeometry([
    Part.LineSegment(Vector(103.586888, -34.895249, 0), Vector(99.078427, -32.483315, 0)),  # 0
    Part.ArcOfCircle(Part.Circle(Vector(96.25, -25, 0), Vector(0, 0, 1), 8), math.radians(69.295189), math.radians(290.704811)),  # 1
    Part.LineSegment(Vector(99.078427, -17.516685, 0), Vector(103.586888, -15.104751, 0)),  # 2
    Part.ArcOfCircle(Part.Circle(Vector(105.002041, -17.75, 0), Vector(0, 0, 1), 3), math.radians(90), math.radians(118.145866)),  # 3
    Part.LineSegment(Vector(105.002041, -14.75, 0), Vector(113.497959, -14.75, 0)),  # 4
    Part.ArcOfCircle(Part.Circle(Vector(113.497959, -17.75, 0), Vector(0, 0, 1), 3), math.radians(61.854134), math.radians(90)),  # 5
    Part.LineSegment(Vector(114.913112, -15.104751, 0), Vector(119.421573, -17.516685, 0)),  # 6
    Part.ArcOfCircle(Part.Circle(Vector(122.25, -25, 0), Vector(0, 0, 1), 8), math.radians(-110.704811), math.radians(110.704811)),  # 7
    Part.LineSegment(Vector(119.421573, -32.483315, 0), Vector(114.913112, -34.895249, 0)),  # 8
    Part.ArcOfCircle(Part.Circle(Vector(113.497959, -32.25, 0), Vector(0, 0, 1), 3), math.radians(-90), math.radians(-61.854134)),  # 9
    Part.LineSegment(Vector(113.497959, -35.25, 0), Vector(105.002041, -35.25, 0)),  # 10
    Part.ArcOfCircle(Part.Circle(Vector(105.002041, -32.25, 0), Vector(0, 0, 1), 3), math.radians(-118.145866), math.radians(-90)),  # 11
], False)
sketch22.addConstraint([
    Sketcher.Constraint("Coincident", 0, 2, 1, 2),
    Sketcher.Constraint("Coincident", 1, 1, 2, 1),
    Sketcher.Constraint("Tangent", 2, 2, 3, 2),
    Sketcher.Constraint("Tangent", 3, 1, 4, 1),
    Sketcher.Constraint("Tangent", 4, 2, 5, 2),
    Sketcher.Constraint("Tangent", 5, 1, 6, 1),
    Sketcher.Constraint("Coincident", 6, 2, 7, 2),
    Sketcher.Constraint("Coincident", 7, 1, 8, 1),
    Sketcher.Constraint("Tangent", 8, 2, 9, 2),
    Sketcher.Constraint("Tangent", 9, 1, 10, 1),
    Sketcher.Constraint("Tangent", 10, 2, 11, 2),
    Sketcher.Constraint("Tangent", 11, 1, 0, 1),
    Sketcher.Constraint("Horizontal", 4),
    Sketcher.Constraint("Horizontal", 10),
    Sketcher.Constraint("Equal", 3, 5),
    Sketcher.Constraint("Equal", 1, 7),
    Sketcher.Constraint("Equal", 5, 9),
    Sketcher.Constraint("Equal", 9, 11),
    Sketcher.Constraint("Parallel", 0, 6),
    Sketcher.Constraint("Parallel", 2, 8),
    Sketcher.Constraint("Horizontal", 1, 3, 7, 3),
    Sketcher.Constraint("Horizontal", 2, 2, 5, 1),
    Sketcher.Constraint("Horizontal", 1, 1, 6, 2),
    Sketcher.Constraint("Horizontal", 0, 2, 7, 1),
    Sketcher.Constraint("Vertical", 5, 3, 9, 3),
    Sketcher.Constraint("Vertical", 0, 2, 1, 1),
    Sketcher.Constraint("Radius", 1, 8.0),
    Sketcher.Constraint("Radius", 3, 3.0),
    Sketcher.Constraint("DistanceY", 1, 3, -1, 1, 25.0),
    Sketcher.Constraint("DistanceX", 1, 3, 7, 3, 26.0),
    Sketcher.Constraint("DistanceY", 9, 3, 5, 3, 14.5),
    Sketcher.Constraint("DistanceX", -1, 1, 1, 3, 96.25),
    Sketcher.Constraint("DistanceX", 4, 1, 4, 2, 8.495917),
    Sketcher.Constraint("DistanceY", 2, 2, -1, 1, 15.104751),
])
pocket21 = body.newObject("PartDesign::Pocket", "Pocket020")
pocket21.Profile = sketch22
pocket21.Type = "UpToFirst"
pocket21.Reversed = True

# Sketch on XY plane
sketch23 = body.newObject("Sketcher::SketchObject", "Sketch022")
sketch23.AttachmentSupport = (doc.getObject("XY_Plane"), [""])
sketch23.MapMode = "FlatFace"
sketch23.addGeometry([
    Part.LineSegment(Vector(2.5, 115, 0), Vector(2.5, 35, 0)),
    Part.LineSegment(Vector(2.5, 35, 0), Vector(7.5, 35, 0)),
    Part.LineSegment(Vector(7.5, 35, 0), Vector(7.5, 115, 0)),
    Part.LineSegment(Vector(7.5, 115, 0), Vector(2.5, 115, 0)),
], False)
sketch23.addConstraint([
    Sketcher.Constraint("Coincident", 0, 2, 1, 1),
    Sketcher.Constraint("Coincident", 1, 2, 2, 1),
    Sketcher.Constraint("Coincident", 2, 2, 3, 1),
    Sketcher.Constraint("Coincident", 3, 2, 0, 1),
    Sketcher.Constraint("Vertical", 0),
    Sketcher.Constraint("Horizontal", 1),
    Sketcher.Constraint("Vertical", 2),
    Sketcher.Constraint("Horizontal", 3),
    Sketcher.Constraint("DistanceX", 1, 1, 1, 2, 5.0),
    Sketcher.Constraint("DistanceY", 0, 2, 0, 1, 80.0),
    Sketcher.Constraint("DistanceY", -1, 1, 0, 2, 35.0),
    Sketcher.Constraint("DistanceX", -1, 1, 0, 2, 2.5),
])
pocket22 = body.newObject("PartDesign::Pocket", "Pocket021")
pocket22.Profile = sketch23
pocket22.Length = 10

# Sketch on YZ plane
sketch24 = body.newObject("Sketcher::SketchObject", "Sketch023")
sketch24.AttachmentSupport = (doc.getObject("YZ_Plane"), [""])
sketch24.MapMode = "FlatFace"
sketch24.addGeometry([
    Part.Circle(Vector(54.27585, -5, 0), Vector(0, 0, 1), 2),
    Part.Circle(Vector(75, -5, 0), Vector(0, 0, 1), 2),
    Part.Circle(Vector(95.72415, -5, 0), Vector(0, 0, 1), 2),
], False)
sketch24.addConstraint([
    Sketcher.Constraint("Equal", 0, 1),
    Sketcher.Constraint("Equal", 1, 2),
    Sketcher.Constraint("Horizontal", 0, 3, 1, 3),
    Sketcher.Constraint("Horizontal", 1, 3, 2, 3),
    Sketcher.Constraint("Diameter", 0, 4.0),
    Sketcher.Constraint("DistanceY", 0, 3, -1, 1, 5.0),
    Sketcher.Constraint("DistanceX", -1, 1, 1, 3, 75.0),
    Sketcher.Constraint("DistanceX", 0, 3, 2, 3, 41.4483),
    Sketcher.Constraint("DistanceX", -1, 1, 0, 3, 54.27585),
])
pocket23 = body.newObject("PartDesign::Pocket", "Pocket022")
pocket23.Profile = sketch24
pocket23.Type = "ThroughAll"
pocket23.Reversed = True

# Sketch on YZ plane
sketch25 = body.newObject("Sketcher::SketchObject", "Sketch024")
sketch25.AttachmentSupport = (doc.getObject("YZ_Plane"), [""])
sketch25.MapMode = "FlatFace"
sketch25.addGeometry([
    Part.LineSegment(Vector(25, -38, 0), Vector(75, -37.940213, 0)),  # 0
    Part.LineSegment(Vector(75, -37.940213, 0), Vector(125, -38, 0)),  # 1
    Part.LineSegment(Vector(125, -38, 0), Vector(125, -42, 0)),  # 2
    Part.LineSegment(Vector(125, -42, 0), Vector(25, -42, 0)),  # 3
    Part.LineSegment(Vector(25, -42, 0), Vector(25, -38, 0)),  # 4
], False)
sketch25.addConstraint([
    Sketcher.Constraint("Coincident", 0, 2, 1, 1),
    Sketcher.Constraint("Coincident", 1, 2, 2, 1),
    Sketcher.Constraint("Coincident", 2, 2, 3, 1),
    Sketcher.Constraint("Coincident", 3, 2, 4, 1),
    Sketcher.Constraint("Coincident", 4, 2, 0, 1),
    Sketcher.Constraint("Vertical", 2),
    Sketcher.Constraint("Horizontal", 3),
    Sketcher.Constraint("Vertical", 4),
    Sketcher.Constraint("Horizontal", 1, 2, 4, 2),
    Sketcher.Constraint("Equal", 0, 1),
    Sketcher.Constraint("DistanceX", 3, 2, 3, 1, 100.0),
    Sketcher.Constraint("DistanceY", 2, 2, 2, 1, 4.0),
    Sketcher.Constraint("DistanceX", -1, 1, 0, 2, 75.0),
    Sketcher.Constraint("DistanceY", 1, 2, -1, 1, 38.0),
    Sketcher.Constraint("DistanceY", 0, 2, -1, 1, 37.940213),
])
pocket24 = body.newObject("PartDesign::Pocket", "Pocket023")
pocket24.Profile = sketch25
pocket24.Type = "ThroughAll"
pocket24.Reversed = True
doc.recompute()

datumplane = body.newObject("PartDesign::Plane", "DatumPlane")
datumplane.AttachmentSupport = (doc.getObject("YZ_Plane"), [""])
datumplane.MapMode = "FlatFace"
datumplane.AttachmentOffset = App.Placement(Vector(0, 0, 115), App.Rotation())
mirrored = body.newObject("PartDesign::Mirrored", "Mirrored")
mirrored.Originals = [pocket22]
mirrored.MirrorPlane = (datumplane, [""])
body.Tip = mirrored

doc.recompute()
